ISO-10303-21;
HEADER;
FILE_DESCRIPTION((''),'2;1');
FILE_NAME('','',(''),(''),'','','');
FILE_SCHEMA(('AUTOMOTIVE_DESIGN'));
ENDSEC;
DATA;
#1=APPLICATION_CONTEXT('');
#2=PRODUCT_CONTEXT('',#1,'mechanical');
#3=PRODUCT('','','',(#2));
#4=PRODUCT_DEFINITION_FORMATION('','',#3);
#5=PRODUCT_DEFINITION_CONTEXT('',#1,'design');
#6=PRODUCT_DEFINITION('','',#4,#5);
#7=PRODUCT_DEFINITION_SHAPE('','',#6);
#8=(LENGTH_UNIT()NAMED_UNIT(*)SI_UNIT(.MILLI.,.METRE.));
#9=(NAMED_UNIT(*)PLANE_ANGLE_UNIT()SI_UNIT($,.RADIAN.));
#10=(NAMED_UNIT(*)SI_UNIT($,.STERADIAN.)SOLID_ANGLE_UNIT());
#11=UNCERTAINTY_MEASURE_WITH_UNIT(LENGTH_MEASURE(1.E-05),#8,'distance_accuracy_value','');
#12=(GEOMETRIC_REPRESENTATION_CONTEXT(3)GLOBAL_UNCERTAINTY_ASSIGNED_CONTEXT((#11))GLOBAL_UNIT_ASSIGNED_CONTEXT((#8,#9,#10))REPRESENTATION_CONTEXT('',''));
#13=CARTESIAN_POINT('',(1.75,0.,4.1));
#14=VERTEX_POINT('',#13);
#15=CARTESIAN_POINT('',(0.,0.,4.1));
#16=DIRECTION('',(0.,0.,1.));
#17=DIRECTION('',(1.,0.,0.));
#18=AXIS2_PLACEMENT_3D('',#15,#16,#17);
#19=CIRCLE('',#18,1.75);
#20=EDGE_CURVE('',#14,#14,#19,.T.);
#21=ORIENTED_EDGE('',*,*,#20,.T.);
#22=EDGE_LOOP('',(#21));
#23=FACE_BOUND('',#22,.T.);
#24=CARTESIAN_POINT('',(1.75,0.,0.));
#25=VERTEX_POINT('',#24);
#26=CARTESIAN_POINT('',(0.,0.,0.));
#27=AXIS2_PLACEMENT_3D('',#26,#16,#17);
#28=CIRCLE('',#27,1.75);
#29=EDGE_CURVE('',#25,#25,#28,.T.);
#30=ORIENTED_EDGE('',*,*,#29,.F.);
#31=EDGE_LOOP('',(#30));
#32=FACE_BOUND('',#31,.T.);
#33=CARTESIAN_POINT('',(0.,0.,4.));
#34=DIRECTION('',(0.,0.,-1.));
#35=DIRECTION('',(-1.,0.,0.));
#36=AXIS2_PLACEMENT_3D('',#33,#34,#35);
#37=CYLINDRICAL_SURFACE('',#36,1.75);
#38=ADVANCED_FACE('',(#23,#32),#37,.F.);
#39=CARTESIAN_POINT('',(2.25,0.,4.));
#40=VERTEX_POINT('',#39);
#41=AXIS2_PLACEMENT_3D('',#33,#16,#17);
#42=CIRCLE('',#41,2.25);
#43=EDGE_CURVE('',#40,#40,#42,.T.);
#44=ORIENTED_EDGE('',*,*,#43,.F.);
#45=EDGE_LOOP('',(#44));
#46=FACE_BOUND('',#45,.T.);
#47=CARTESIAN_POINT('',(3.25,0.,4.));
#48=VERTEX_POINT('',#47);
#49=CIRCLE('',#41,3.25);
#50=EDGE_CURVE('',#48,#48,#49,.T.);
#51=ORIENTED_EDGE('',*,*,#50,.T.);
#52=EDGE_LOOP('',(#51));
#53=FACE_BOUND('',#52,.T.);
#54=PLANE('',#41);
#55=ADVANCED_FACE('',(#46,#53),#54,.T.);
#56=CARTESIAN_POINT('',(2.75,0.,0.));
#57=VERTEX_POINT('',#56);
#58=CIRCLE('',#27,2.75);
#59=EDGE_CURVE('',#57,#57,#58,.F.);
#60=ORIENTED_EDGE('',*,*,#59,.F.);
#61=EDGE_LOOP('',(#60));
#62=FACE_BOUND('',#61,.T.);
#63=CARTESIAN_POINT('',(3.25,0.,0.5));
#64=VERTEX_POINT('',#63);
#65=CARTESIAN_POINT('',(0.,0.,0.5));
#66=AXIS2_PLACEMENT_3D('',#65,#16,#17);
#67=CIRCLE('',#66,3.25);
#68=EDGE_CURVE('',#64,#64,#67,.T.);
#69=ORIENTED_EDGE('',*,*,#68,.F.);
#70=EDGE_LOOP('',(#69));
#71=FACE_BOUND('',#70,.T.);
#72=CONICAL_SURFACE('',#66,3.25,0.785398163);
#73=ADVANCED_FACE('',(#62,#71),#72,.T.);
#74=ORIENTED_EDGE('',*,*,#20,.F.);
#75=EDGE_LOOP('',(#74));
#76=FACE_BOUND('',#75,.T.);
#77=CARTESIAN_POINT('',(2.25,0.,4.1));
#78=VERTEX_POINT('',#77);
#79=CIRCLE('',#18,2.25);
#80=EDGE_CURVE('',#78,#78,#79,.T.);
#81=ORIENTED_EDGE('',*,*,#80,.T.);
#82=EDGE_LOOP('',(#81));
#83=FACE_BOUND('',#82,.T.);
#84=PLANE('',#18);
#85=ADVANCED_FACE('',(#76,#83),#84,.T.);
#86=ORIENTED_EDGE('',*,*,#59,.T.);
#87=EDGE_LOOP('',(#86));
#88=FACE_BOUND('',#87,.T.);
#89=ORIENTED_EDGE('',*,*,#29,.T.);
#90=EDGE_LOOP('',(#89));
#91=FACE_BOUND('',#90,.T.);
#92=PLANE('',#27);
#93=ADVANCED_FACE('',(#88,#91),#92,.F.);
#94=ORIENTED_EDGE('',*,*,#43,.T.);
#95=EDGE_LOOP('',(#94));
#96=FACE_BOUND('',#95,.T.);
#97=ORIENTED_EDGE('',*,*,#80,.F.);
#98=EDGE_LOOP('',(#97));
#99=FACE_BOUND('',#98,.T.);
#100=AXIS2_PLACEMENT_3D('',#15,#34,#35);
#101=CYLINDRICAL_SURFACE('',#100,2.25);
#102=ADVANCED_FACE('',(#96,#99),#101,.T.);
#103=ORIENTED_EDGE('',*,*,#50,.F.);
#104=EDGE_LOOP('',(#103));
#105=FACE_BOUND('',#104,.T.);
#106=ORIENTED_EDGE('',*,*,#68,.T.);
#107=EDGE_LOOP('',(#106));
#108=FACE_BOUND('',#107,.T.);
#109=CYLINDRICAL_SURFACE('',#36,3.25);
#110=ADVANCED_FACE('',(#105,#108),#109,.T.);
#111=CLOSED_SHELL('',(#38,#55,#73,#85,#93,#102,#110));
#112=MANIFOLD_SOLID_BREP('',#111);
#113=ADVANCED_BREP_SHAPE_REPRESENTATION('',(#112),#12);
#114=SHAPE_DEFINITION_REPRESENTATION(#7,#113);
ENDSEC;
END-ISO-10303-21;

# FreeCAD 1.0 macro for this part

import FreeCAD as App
import Part
import Sketcher

V = App.Vector


def edges_at(feature, points):
    """Names of the edges that pass closest to the given points."""
    edges = feature.Shape.Edges
    near = lambda p: min(range(len(edges)), key=lambda i: edges[i].distToShape(Part.Vertex(*p))[0])
    return sorted({f"Edge{near(p) + 1}" for p in points})

doc = App.newDocument("Part")
body = doc.addObject("PartDesign::Body", "Body")

# Sketch on XY plane
sketch1 = body.newObject("Sketcher::SketchObject", "Sketch")
sketch1.AttachmentSupport = (doc.getObject("XY_Plane"), [""])
sketch1.MapMode = "FlatFace"
sketch1.addGeometry([
    Part.Circle(V(0, 0, 0), V(0, 0, 1), 3.2),
    Part.Circle(V(0, 0, 0), V(0, 0, 1), 1.8),
], False)
sketch1.addConstraint([
    Sketcher.Constraint("Coincident", 0, 3, -1, 1),
    Sketcher.Constraint("Coincident", 1, 3, -1, 1),
    Sketcher.Constraint("Diameter", 0, 6.5),
    Sketcher.Constraint("Diameter", 1, 3.5),
])
pad1 = body.newObject("PartDesign::Pad", "Pad")
pad1.Profile = sketch1
pad1.Length = 4

# Sketch on XY plane
sketch2 = body.newObject("Sketcher::SketchObject", "Sketch001")
sketch2.AttachmentSupport = (doc.getObject("XY_Plane"), [""])
sketch2.MapMode = "FlatFace"
sketch2.AttachmentOffset = App.Placement(V(0, 0, 4), App.Rotation())
sketch2.addGeometry([
    Part.Circle(V(0, 0, 0), V(0, 0, 1), 2.2),
    Part.Circle(V(0, 0, 0), V(0, 0, 1), 1.8),
], False)
sketch2.addConstraint([
    Sketcher.Constraint("Coincident", 0, 3, -1, 1),
    Sketcher.Constraint("Coincident", 1, 3, -1, 1),
    Sketcher.Constraint("Diameter", 0, 4.5),
    Sketcher.Constraint("Diameter", 1, 3.5),
])
pad2 = body.newObject("PartDesign::Pad", "Pad001")
pad2.Profile = sketch2
pad2.Length = 0.1
doc.recompute()

chamfer = body.newObject("PartDesign::Chamfer", "Chamfer")
chamfer.Base = (pad2, edges_at(pad2, [(-3.25, 0, 0)]))
chamfer.Size = 0.5

doc.recompute()
